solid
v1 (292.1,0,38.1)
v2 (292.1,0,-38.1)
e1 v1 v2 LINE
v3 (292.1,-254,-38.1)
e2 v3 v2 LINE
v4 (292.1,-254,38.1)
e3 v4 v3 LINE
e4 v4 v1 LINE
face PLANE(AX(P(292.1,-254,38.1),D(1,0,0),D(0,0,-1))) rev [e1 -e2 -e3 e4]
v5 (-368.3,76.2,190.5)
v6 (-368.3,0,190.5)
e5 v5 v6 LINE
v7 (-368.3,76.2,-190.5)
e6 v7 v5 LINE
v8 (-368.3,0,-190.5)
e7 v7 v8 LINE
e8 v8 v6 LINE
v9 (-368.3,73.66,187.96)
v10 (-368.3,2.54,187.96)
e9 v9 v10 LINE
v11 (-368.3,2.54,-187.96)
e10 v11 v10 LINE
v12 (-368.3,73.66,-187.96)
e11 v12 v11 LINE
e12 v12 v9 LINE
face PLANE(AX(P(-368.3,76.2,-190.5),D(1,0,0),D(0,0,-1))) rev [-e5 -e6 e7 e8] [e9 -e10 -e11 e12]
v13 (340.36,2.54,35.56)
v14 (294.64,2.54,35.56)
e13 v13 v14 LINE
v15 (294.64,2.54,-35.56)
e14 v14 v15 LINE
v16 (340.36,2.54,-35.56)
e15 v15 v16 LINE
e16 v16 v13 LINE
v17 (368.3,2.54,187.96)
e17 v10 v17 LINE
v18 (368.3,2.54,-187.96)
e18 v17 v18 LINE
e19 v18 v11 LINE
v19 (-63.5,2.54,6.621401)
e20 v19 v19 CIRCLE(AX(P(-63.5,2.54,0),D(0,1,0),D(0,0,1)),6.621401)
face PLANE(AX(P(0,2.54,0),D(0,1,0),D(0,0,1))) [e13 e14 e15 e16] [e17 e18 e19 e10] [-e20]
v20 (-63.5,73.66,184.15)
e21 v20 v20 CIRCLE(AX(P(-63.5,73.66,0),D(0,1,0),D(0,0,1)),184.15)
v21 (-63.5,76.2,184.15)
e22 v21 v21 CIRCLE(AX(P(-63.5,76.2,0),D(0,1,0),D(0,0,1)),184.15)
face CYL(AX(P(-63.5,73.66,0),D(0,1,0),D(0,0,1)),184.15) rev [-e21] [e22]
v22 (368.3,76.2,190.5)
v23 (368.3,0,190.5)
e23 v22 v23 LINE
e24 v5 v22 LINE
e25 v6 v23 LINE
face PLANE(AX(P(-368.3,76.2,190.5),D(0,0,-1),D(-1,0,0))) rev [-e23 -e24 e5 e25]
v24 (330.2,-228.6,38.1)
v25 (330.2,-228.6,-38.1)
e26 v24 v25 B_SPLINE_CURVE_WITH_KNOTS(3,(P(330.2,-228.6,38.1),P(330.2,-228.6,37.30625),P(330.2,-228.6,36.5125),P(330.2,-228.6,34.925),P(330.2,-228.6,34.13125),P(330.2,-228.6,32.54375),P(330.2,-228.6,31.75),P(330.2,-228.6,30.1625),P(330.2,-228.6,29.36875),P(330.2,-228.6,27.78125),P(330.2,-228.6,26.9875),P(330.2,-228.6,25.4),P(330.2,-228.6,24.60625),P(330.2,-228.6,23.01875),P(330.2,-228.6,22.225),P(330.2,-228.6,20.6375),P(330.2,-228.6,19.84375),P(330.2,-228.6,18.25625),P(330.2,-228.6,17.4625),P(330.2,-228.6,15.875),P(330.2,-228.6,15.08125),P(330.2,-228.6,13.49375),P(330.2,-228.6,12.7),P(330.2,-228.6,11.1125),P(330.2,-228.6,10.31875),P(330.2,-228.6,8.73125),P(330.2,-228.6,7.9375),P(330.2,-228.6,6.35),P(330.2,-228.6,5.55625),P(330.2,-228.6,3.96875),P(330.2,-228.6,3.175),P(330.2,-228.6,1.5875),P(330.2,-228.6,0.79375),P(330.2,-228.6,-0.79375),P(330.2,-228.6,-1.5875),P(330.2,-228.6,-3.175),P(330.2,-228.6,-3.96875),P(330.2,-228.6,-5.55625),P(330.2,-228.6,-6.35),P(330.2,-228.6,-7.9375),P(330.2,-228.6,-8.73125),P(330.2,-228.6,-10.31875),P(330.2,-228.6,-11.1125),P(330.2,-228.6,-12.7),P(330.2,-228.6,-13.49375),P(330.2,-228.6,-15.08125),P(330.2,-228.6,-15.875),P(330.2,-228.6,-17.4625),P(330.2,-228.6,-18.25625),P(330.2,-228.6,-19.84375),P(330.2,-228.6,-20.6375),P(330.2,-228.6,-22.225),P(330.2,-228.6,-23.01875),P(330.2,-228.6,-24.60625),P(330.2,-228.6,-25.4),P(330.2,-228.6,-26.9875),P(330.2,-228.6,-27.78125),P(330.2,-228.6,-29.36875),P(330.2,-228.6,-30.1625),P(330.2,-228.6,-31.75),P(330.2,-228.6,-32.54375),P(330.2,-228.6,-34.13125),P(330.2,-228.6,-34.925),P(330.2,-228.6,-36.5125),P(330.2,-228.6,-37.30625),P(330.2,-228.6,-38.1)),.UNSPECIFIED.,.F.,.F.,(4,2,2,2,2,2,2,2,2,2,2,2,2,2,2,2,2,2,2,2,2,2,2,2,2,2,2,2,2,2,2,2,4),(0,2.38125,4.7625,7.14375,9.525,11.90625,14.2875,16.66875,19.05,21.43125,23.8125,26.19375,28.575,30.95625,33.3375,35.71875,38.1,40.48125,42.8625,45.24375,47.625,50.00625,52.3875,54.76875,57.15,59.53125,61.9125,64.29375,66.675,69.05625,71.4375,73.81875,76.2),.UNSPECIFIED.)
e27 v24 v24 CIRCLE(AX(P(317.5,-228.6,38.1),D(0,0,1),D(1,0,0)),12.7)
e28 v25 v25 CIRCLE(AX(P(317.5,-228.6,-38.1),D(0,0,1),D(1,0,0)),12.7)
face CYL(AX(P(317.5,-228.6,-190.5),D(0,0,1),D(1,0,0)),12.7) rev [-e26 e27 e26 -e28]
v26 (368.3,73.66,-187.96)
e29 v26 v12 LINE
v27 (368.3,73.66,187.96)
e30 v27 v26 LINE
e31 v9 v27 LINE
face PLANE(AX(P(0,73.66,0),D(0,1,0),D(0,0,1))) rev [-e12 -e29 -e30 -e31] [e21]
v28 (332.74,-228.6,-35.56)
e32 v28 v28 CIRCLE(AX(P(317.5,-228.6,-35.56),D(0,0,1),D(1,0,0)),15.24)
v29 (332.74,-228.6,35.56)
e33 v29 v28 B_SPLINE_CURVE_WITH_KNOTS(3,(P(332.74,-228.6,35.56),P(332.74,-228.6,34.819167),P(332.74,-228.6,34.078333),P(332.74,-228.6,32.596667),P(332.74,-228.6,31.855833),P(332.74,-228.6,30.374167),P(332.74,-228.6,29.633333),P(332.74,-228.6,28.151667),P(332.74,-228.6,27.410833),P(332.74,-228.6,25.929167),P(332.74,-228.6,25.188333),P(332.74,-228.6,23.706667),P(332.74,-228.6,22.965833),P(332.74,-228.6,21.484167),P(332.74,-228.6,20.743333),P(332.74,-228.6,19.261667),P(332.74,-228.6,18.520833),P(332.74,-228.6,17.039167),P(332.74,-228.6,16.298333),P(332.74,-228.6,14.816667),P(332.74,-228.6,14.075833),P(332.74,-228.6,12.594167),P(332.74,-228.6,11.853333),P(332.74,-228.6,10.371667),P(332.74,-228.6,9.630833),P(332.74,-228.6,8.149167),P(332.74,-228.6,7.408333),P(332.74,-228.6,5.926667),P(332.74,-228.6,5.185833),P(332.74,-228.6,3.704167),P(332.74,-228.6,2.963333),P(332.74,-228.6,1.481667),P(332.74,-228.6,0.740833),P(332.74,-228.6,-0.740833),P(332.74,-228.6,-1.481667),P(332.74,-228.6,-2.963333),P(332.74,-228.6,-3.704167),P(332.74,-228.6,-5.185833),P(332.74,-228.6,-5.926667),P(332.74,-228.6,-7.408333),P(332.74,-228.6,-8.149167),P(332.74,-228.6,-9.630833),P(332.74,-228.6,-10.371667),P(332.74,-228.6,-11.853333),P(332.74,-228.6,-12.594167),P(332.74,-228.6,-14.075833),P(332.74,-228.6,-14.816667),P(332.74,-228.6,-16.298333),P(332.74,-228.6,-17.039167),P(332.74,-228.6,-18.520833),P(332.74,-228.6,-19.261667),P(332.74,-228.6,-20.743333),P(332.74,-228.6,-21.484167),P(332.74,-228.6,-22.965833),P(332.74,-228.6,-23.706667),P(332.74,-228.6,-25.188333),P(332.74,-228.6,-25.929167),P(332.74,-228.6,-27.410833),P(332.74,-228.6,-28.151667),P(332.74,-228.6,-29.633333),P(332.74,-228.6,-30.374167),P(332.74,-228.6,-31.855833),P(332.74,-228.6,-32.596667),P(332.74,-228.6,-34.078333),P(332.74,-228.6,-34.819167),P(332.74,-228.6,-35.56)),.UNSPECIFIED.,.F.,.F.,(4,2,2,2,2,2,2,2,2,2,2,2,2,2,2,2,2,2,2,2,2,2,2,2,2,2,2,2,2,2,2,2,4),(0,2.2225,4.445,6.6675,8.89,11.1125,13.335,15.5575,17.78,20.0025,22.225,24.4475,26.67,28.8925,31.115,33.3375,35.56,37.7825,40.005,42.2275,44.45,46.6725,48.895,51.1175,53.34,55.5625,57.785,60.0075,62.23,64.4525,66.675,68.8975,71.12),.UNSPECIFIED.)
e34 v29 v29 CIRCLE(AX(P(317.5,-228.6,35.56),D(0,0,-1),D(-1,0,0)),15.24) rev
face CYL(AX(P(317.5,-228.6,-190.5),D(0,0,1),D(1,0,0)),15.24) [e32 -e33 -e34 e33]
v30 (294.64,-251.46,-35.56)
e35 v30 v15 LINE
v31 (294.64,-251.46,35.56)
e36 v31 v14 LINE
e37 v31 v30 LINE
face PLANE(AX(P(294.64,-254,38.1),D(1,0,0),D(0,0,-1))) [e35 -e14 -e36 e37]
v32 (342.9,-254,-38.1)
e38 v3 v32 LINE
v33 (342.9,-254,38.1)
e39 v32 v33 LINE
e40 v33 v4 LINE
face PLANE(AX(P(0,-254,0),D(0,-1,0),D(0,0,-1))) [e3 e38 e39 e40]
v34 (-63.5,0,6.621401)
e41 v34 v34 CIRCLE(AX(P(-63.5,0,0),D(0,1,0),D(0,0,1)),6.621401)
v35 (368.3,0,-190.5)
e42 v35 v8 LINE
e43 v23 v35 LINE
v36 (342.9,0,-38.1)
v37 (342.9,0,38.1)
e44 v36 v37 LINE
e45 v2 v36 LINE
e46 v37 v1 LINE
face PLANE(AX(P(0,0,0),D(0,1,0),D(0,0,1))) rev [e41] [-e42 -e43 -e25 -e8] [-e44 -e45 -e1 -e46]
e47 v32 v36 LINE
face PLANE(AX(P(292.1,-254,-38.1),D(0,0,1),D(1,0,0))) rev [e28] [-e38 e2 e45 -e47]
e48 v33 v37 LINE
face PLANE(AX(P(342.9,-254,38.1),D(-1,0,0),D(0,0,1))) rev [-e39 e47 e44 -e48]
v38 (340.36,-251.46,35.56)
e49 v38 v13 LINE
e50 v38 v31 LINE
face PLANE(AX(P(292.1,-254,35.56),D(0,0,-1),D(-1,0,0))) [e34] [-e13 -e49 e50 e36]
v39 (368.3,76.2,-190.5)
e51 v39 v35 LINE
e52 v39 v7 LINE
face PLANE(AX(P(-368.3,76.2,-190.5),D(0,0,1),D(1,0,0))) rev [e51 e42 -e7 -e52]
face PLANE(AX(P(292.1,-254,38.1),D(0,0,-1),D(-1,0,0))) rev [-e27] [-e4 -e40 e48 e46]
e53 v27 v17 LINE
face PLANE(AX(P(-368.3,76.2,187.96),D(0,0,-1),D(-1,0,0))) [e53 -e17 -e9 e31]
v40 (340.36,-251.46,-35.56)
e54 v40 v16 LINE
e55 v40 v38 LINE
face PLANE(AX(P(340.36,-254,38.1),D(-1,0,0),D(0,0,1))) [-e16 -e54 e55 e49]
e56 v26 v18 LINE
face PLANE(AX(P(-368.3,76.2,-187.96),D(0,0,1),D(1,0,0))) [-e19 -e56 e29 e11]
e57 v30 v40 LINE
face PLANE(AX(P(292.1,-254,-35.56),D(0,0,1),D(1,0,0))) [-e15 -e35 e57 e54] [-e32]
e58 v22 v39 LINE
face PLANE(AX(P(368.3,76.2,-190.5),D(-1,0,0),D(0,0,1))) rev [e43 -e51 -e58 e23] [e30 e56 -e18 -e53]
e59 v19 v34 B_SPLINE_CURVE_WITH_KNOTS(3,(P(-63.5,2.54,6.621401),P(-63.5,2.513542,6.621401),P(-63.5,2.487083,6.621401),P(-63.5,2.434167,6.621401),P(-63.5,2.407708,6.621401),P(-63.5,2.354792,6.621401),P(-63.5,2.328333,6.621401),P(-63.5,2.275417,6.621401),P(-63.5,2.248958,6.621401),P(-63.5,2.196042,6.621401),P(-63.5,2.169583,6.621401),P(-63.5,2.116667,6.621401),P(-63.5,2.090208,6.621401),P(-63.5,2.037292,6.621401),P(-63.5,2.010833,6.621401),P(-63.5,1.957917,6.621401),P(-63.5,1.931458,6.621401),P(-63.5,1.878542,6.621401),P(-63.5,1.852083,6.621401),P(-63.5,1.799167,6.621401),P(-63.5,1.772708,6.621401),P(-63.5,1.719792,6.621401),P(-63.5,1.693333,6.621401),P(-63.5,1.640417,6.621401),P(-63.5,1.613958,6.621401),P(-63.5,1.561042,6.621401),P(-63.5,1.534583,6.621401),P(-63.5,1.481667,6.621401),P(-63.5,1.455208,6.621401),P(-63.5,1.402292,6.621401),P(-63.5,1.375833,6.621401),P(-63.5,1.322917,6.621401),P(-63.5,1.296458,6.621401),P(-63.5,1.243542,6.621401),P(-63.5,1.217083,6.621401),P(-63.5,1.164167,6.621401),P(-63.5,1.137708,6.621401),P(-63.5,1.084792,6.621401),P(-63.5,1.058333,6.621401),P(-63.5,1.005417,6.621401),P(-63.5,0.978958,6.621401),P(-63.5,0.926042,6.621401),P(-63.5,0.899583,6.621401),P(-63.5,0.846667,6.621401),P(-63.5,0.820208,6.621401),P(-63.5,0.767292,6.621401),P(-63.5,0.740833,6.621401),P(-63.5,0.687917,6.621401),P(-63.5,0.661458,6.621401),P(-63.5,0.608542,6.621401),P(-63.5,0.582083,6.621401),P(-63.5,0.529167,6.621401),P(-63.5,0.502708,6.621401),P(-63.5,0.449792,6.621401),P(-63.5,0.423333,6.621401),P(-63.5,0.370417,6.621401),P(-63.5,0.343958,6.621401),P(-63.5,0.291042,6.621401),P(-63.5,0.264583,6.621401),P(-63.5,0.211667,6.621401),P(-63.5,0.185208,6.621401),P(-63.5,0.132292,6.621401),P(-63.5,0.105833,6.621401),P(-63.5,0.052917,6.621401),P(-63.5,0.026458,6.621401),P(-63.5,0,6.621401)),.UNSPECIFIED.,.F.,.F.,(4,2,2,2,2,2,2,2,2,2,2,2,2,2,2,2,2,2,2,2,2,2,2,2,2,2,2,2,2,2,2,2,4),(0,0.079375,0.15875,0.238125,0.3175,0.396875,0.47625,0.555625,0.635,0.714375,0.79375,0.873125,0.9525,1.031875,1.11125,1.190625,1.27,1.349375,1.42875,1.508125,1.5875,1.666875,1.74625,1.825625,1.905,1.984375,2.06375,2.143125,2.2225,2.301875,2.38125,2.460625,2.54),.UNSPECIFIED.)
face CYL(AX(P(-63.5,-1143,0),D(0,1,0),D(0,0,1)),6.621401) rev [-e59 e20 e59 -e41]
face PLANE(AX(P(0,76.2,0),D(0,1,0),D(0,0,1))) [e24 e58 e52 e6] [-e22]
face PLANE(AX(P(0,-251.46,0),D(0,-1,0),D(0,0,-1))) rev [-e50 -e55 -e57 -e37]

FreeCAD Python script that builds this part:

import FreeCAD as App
import Part
import Sketcher
Q = App.Units.Quantity


def faces_at(feature, points):
    """Names of the faces that lie closest to the given points."""
    faces = feature.Shape.Faces
    near = lambda p: min(range(len(faces)), key=lambda i: faces[i].distToShape(Part.Vertex(*p))[0])
    return sorted({f"Face{near(p) + 1}" for p in points})


def add_polygon(sketch, points):
    """Adds a closed chain of lines whose ends are joined by coincident constraints."""
    first, n = sketch.GeometryCount, len(points)
    for a, b in zip(points, points[1:] + points[:1]):
        sketch.addGeometry(Part.LineSegment(App.Vector(*a, 0), App.Vector(*b, 0)), False)
    for i in range(n):
        sketch.addConstraint(Sketcher.Constraint("Coincident", first + i, 2, first + (i + 1) % n, 1))

doc = App.newDocument("Part")
params = doc.addObject("Spreadsheet::Sheet", "Params")
for row, (alias, value) in enumerate([
    ("sketch1_width", "29 in"),
    ("sketch1_height", "15 in"),
    ("pad1_length", "3 in"),
    ("sketch2_width", "2 in"),
    ("sketch2_height", "3 in"),
    ("pad2_length", "10 in"),
    ("sketch3_diameter", "1 in"),
    ("thickness_wall", "0.1 in"),
    ("sketch4_diameter", "14.5 in"),
    ("pocket2_length", "0.1 in"),
    ("pocket3_length", "48 in"),
], start=1):
    params.set(f"A{row}", alias)
    params.set(f"B{row}", "=" + value)
    params.setAlias(f"B{row}", alias)

body = doc.addObject("PartDesign::Body", "Body")

sketch1 = doc.addObject("Sketcher::SketchObject", "Sketch")
body.addObject(sketch1)
sketch1.AttachmentSupport = (doc.XZ_Plane, [""])
sketch1.MapMode = "FlatFace"
add_polygon(sketch1, [(-368, -190), (-368, 190), (368, 190), (368, -190)])
sketch1.addConstraint(Sketcher.Constraint("Vertical", 0))
sketch1.addConstraint(Sketcher.Constraint("Horizontal", 1))
sketch1.addConstraint(Sketcher.Constraint("Vertical", 2))
sketch1.addConstraint(Sketcher.Constraint("Horizontal", 3))
sketch1.addConstraint(Sketcher.Constraint("Symmetric", 0, 2, 2, 2, -1, 1))
sketch1.addConstraint(Sketcher.Constraint("DistanceX", 1, 1, 1, 2, Q("29 in")))
sketch1.addConstraint(Sketcher.Constraint("DistanceY", 0, 1, 0, 2, Q("15 in")))
sketch1.setExpression("Constraints[9]", "Params.sketch1_width")
sketch1.setExpression("Constraints[10]", "Params.sketch1_height")
pad1 = doc.addObject("PartDesign::Pad", "Pad")
body.addObject(pad1)
pad1.Profile = sketch1
pad1.setExpression("Length", "Params.pad1_length")
pad1.Reversed = True

sketch2 = doc.addObject("Sketcher::SketchObject", "Sketch001")
body.addObject(sketch2)
sketch2.AttachmentSupport = (doc.XZ_Plane, [""])
sketch2.MapMode = "FlatFace"
add_polygon(sketch2, [(343, -38), (343, 38), (292, 38), (292, -38)])
sketch2.addConstraint(Sketcher.Constraint("Vertical", 0))
sketch2.addConstraint(Sketcher.Constraint("Horizontal", 1))
sketch2.addConstraint(Sketcher.Constraint("Vertical", 2))
sketch2.addConstraint(Sketcher.Constraint("Horizontal", 3))
sketch2.addConstraint(Sketcher.Constraint("DistanceX", 1, 2, 1, 1, Q("2 in")))
sketch2.addConstraint(Sketcher.Constraint("DistanceY", 0, 1, 0, 2, Q("3 in")))
sketch2.addConstraint(Sketcher.Constraint("DistanceX", -1, 1, 0, 2, Q("13.5 in")))
sketch2.addConstraint(Sketcher.Constraint("DistanceY", -1, 1, 0, 2, Q("1.5 in")))
sketch2.setExpression("Constraints[8]", "Params.sketch2_width")
sketch2.setExpression("Constraints[9]", "Params.sketch2_height")
pad2 = doc.addObject("PartDesign::Pad", "Pad001")
body.addObject(pad2)
pad2.Profile = sketch2
pad2.setExpression("Length", "Params.pad2_length")

sketch3 = doc.addObject("Sketcher::SketchObject", "Sketch002")
body.addObject(sketch3)
sketch3.AttachmentSupport = (doc.XY_Plane, [""])
sketch3.MapMode = "FlatFace"
sketch3.AttachmentOffset = App.Placement(App.Vector(0, 0, 1.5 * 25.4), App.Rotation())
sketch3.addGeometry(Part.Circle(App.Vector(318, -229, 0), App.Vector(0, 0, 1), 13), False)
sketch3.addConstraint(Sketcher.Constraint("Diameter", 0, Q("1 in")))
sketch3.addConstraint(Sketcher.Constraint("DistanceY", 0, 3, -1, 1, Q("9 in")))
sketch3.addConstraint(Sketcher.Constraint("DistanceX", -1, 1, 0, 3, Q("12.5 in")))
sketch3.setExpression("Constraints[0]", "Params.sketch3_diameter")
pocket1 = doc.addObject("PartDesign::Pocket", "Pocket")
body.addObject(pocket1)
pocket1.Profile = sketch3
pocket1.Type = "ThroughAll"
doc.recompute()

thickness = doc.addObject("PartDesign::Thickness", "Thickness")
body.addObject(thickness)
thickness.Base = (pocket1, faces_at(pocket1, [(-368.3, 38.1, 0), (368.3, 38.1, 0)]))
thickness.setExpression("Value", "Params.thickness_wall")
thickness.Reversed = True
thickness.Join = "Intersection"

sketch4 = doc.addObject("Sketcher::SketchObject", "Sketch003")
body.addObject(sketch4)
sketch4.AttachmentSupport = (doc.XZ_Plane, [""])
sketch4.MapMode = "FlatFace"
sketch4.AttachmentOffset = App.Placement(App.Vector(0, 0, -3 * 25.4), App.Rotation())
sketch4.addGeometry(Part.Circle(App.Vector(-64, 0, 0), App.Vector(0, 0, 1), 184), False)
sketch4.addConstraint(Sketcher.Constraint("PointOnObject", 0, 3, -1))
sketch4.addConstraint(Sketcher.Constraint("Diameter", 0, Q("14.5 in")))
sketch4.addConstraint(Sketcher.Constraint("DistanceX", 0, 3, -1, 1, Q("2.5 in")))
sketch4.setExpression("Constraints[1]", "Params.sketch4_diameter")
pocket2 = doc.addObject("PartDesign::Pocket", "Pocket001")
body.addObject(pocket2)
pocket2.Profile = sketch4
pocket2.setExpression("Length", "Params.pocket2_length")
pocket2.Reversed = True

sketch5 = doc.addObject("Sketcher::SketchObject", "Sketch004")
body.addObject(sketch5)
sketch5.AttachmentSupport = (doc.XZ_Plane, [""])
sketch5.MapMode = "FlatFace"
sketch5.AttachmentOffset = App.Placement(App.Vector(0, 0, -3 * 25.4), App.Rotation())
sketch5.addGeometry(Part.Circle(App.Vector(-64, 0, 0), App.Vector(0, 0, 1), 7), False)
sketch5.addConstraint(Sketcher.Constraint("PointOnObject", 0, 3, -1))
sketch5.addConstraint(Sketcher.Constraint("DistanceX", 0, 3, -1, 1, Q("2.5 in")))
sketch5.addConstraint(Sketcher.Constraint("Diameter", 0, Q("13.242802 mm")))
pocket3 = doc.addObject("PartDesign::Pocket", "Pocket002")
body.addObject(pocket3)
pocket3.Profile = sketch5
pocket3.setExpression("Length", "Params.pocket3_length")
pocket3.Reversed = True

doc.recompute()
